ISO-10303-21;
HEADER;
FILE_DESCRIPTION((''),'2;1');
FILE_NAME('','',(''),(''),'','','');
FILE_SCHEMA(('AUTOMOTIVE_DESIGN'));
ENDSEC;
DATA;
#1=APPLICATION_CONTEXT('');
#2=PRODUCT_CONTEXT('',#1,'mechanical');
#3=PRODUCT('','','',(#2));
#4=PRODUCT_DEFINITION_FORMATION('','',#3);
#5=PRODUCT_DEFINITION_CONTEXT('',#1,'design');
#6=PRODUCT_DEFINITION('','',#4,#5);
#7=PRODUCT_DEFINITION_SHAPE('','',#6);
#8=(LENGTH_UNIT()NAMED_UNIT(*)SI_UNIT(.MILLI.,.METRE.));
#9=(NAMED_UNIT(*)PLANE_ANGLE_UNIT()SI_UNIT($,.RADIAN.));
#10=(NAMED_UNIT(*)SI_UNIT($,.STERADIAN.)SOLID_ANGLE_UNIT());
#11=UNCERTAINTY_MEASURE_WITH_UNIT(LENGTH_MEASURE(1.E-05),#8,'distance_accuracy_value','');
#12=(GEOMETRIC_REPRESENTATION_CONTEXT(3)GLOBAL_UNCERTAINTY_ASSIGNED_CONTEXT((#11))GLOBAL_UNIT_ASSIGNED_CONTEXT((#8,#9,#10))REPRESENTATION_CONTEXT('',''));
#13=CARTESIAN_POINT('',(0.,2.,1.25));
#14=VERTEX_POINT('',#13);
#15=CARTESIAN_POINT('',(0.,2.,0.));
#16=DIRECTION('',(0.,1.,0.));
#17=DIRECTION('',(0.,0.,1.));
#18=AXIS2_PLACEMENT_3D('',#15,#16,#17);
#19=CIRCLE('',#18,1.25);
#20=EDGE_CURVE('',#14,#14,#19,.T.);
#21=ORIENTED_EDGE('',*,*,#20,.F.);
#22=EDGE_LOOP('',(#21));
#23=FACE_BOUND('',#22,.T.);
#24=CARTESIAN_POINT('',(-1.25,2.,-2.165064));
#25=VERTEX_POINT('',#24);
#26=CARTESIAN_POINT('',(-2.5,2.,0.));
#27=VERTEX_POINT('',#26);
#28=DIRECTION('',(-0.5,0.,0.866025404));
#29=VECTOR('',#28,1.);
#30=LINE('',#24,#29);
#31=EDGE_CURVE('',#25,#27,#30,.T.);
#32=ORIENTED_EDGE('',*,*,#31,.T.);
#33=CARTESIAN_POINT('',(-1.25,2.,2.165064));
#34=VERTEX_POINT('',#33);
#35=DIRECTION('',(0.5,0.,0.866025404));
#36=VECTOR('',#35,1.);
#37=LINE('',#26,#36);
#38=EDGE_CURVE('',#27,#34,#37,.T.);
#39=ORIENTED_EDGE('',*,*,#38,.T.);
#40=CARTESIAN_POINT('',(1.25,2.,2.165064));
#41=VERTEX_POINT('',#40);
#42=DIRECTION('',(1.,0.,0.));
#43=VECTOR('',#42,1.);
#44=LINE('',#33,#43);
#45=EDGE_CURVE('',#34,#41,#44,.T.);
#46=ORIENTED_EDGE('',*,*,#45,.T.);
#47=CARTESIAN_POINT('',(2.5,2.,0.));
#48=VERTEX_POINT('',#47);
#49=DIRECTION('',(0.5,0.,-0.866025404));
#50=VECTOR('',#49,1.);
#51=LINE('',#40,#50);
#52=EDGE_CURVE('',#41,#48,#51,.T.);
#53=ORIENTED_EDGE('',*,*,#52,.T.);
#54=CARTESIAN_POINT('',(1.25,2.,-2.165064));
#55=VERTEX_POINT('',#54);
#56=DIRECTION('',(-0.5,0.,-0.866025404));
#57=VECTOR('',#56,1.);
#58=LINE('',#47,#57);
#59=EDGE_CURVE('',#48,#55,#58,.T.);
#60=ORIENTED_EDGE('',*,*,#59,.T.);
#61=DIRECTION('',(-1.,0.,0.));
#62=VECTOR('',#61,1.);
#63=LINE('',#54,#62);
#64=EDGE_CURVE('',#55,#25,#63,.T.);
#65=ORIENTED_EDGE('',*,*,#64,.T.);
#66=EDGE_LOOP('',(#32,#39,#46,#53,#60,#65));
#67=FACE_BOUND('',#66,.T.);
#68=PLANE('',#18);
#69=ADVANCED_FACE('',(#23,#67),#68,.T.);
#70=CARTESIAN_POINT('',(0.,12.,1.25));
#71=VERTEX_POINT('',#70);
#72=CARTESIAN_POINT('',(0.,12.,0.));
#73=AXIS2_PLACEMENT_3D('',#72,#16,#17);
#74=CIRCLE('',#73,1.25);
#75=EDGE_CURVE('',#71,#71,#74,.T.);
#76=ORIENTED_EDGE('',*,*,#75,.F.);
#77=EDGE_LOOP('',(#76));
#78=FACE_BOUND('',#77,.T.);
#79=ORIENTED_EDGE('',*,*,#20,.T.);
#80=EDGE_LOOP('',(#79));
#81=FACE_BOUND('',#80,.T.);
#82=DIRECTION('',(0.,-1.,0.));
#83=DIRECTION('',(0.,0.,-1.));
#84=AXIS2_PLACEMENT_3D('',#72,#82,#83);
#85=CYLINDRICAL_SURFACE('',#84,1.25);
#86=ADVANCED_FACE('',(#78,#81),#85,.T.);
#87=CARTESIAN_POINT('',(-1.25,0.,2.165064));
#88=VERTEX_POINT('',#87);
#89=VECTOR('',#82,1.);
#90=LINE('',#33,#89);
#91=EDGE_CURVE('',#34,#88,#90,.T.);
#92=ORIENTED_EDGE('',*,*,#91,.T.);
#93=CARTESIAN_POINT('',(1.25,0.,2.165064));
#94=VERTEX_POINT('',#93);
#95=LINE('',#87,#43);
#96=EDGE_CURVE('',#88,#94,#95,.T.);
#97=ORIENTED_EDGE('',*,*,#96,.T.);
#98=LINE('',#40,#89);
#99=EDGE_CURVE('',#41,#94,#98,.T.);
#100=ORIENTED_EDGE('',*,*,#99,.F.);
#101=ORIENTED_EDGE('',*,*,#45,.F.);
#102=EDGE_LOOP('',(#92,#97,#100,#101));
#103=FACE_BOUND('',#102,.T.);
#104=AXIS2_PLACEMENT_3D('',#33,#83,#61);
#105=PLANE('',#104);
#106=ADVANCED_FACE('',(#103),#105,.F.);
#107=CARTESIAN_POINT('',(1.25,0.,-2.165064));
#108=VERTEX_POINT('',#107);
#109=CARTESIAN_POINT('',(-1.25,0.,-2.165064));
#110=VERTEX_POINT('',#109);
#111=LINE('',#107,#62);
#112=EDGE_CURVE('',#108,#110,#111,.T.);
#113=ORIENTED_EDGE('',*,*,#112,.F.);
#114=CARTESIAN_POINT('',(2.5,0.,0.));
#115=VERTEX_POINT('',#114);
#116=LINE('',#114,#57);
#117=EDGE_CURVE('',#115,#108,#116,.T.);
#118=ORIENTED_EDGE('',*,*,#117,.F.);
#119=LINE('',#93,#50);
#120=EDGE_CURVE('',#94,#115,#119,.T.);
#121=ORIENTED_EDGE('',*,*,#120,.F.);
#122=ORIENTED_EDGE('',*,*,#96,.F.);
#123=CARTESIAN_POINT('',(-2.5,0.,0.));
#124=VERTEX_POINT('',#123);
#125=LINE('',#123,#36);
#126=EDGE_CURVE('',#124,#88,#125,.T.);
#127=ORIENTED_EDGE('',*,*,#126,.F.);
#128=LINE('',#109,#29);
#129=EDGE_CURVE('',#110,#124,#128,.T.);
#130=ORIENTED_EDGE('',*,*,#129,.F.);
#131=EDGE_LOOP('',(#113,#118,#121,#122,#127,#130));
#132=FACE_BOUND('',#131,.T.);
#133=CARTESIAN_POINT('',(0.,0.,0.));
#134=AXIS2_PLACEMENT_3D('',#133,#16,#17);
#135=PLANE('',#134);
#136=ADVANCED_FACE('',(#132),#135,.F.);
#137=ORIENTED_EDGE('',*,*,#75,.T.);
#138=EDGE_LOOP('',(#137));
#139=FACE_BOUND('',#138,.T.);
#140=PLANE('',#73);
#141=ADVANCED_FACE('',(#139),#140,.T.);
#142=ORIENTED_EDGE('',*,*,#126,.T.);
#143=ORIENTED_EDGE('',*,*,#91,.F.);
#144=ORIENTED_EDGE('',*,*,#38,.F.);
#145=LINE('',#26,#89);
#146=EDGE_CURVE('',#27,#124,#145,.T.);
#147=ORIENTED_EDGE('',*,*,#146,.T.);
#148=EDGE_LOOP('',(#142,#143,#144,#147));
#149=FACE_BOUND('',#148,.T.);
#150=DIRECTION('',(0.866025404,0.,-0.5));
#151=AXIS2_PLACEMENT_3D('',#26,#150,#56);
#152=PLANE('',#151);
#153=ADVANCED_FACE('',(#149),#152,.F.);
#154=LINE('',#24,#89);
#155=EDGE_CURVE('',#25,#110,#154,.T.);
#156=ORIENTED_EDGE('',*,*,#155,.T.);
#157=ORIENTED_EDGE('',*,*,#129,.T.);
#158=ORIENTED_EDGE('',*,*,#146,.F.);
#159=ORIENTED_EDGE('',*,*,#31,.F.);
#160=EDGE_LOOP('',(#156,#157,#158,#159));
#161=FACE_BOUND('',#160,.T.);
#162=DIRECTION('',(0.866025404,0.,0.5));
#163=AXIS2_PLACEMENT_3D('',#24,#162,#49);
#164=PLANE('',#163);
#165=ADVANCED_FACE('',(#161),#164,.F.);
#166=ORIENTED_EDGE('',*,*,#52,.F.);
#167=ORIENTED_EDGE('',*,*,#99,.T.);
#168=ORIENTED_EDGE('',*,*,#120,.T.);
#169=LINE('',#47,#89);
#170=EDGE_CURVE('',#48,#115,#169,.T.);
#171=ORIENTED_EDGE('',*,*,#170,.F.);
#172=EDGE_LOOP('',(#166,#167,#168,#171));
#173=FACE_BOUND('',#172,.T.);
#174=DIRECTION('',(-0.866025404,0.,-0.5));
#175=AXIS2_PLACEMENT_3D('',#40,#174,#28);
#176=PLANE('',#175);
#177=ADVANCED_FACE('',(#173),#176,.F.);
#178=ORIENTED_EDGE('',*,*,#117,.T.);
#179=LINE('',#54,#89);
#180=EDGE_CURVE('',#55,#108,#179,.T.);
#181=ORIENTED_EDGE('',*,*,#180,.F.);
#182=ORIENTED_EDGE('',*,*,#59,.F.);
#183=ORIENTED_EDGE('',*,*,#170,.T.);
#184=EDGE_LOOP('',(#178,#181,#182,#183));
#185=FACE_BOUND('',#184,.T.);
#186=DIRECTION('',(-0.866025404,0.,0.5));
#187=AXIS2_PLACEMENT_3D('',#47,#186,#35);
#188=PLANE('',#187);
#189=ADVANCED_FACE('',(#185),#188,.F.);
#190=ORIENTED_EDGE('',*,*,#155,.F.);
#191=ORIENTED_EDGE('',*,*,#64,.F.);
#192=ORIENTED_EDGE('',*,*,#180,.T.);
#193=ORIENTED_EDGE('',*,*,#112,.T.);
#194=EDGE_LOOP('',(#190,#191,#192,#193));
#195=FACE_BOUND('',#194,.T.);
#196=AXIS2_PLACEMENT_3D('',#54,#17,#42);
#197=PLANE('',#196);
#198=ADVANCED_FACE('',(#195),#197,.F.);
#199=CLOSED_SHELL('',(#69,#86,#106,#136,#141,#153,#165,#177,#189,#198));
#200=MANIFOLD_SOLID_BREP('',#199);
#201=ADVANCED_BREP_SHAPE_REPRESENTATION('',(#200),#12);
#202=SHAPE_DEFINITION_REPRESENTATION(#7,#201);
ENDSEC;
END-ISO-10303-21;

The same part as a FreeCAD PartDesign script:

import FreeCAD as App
import Part
import Sketcher

V = App.Vector
Q = App.Units.Quantity


def add_polygon(sketch, points):
    """Adds a closed chain of lines whose ends are joined by coincident constraints."""
    first, n = sketch.GeometryCount, len(points)
    for a, b in zip(points, points[1:] + points[:1]):
        sketch.addGeometry(Part.LineSegment(App.Vector(*a, 0), App.Vector(*b, 0)), False)
    for i in range(n):
        sketch.addConstraint(Sketcher.Constraint("Coincident", first + i, 2, first + (i + 1) % n, 1))

doc = App.newDocument("Part")
body = doc.addObject("PartDesign::Body", "Body")

sketch1 = body.newObject("Sketcher::SketchObject", "Sketch")
sketch1.AttachmentSupport = (doc.getObject("XZ_Plane"), [""])
sketch1.MapMode = "FlatFace"
add_polygon(sketch1, [(1.2, -2.2), (-1.2, -2.2), (-2.5, 0), (-1.2, 2.2), (1.2, 2.2), (2.5, 0)])
sketch1.addConstraint([
    Sketcher.Constraint("Horizontal", 0),
    Sketcher.Constraint("Horizontal", 3),
    Sketcher.Constraint("Symmetric", 0, 2, 3, 2, -1, 1),
    Sketcher.Constraint("Symmetric", 1, 2, 4, 2, -1, 1),
    Sketcher.Constraint("PointOnObject", 1, 2, -1),
    Sketcher.Constraint("Parallel", 2, 5),
    Sketcher.Constraint("Vertical", 0, 2, 2, 2),
    Sketcher.Constraint("Angle", 1, Q("120 deg")),
    Sketcher.Constraint("DistanceX", 0, 2, 0, 1, Q("2.5 mm")),
    Sketcher.Constraint("DistanceX", 1, 2, 4, 2, Q("5 mm")),
])
pad1 = body.newObject("PartDesign::Pad", "Pad")
pad1.Profile = sketch1
pad1.Length = 2
pad1.Reversed = True

sketch2 = body.newObject("Sketcher::SketchObject", "Sketch001")
sketch2.AttachmentSupport = (doc.getObject("XZ_Plane"), [""])
sketch2.MapMode = "FlatFace"
sketch2.AttachmentOffset = App.Placement(V(0, 0, -2), App.Rotation())
sketch2.addGeometry(Part.Circle(V(0, 0, 0), V(0, 0, 1), 1.2), False)
sketch2.addConstraint([
    Sketcher.Constraint("Coincident", 0, 3, -1, 1),
    Sketcher.Constraint("Diameter", 0, Q("2.5 mm")),
])
pad2 = body.newObject("PartDesign::Pad", "Pad001")
pad2.Profile = sketch2
pad2.Length = 10
pad2.Reversed = True

doc.recompute()
